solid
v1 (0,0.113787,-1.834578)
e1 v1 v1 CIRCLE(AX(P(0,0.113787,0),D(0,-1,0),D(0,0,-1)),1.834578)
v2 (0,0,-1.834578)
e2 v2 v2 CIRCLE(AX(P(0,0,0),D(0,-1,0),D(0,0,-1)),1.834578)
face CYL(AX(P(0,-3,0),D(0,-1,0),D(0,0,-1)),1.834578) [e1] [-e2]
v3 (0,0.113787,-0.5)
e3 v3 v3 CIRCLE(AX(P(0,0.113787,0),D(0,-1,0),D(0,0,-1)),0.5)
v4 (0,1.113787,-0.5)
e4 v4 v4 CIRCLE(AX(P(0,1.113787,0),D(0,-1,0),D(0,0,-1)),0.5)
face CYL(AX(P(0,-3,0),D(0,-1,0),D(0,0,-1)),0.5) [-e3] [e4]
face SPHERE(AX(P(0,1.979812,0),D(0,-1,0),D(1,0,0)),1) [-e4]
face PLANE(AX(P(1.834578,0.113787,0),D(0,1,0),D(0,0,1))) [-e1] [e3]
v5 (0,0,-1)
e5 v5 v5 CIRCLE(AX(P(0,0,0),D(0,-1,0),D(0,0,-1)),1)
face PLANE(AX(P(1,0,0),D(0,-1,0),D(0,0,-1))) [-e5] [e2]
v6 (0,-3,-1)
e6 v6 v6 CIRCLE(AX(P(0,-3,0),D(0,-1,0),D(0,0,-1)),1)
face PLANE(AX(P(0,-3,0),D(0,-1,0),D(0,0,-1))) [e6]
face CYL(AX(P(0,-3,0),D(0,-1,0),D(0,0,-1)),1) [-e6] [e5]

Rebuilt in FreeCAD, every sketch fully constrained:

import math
import FreeCAD as App
import Part
import Sketcher

V = App.Vector

doc = App.newDocument("Part")
params = doc.addObject("Spreadsheet::Sheet", "Params")
for row, (alias, value) in enumerate([
    ("sketch1_radius", "1 mm"),
    ("sketch1_width", "1 mm"),
    ("sketch1_height", "3 mm"),
    ("revolution_angle", "360 deg"),
], start=1):
    params.set(f"A{row}", alias)
    params.set(f"B{row}", "=" + value)
    params.setAlias(f"B{row}", alias)

body = doc.addObject("PartDesign::Body", "Body")

# Sketch on XY plane
sketch1 = body.newObject("Sketcher::SketchObject", "Sketch")
sketch1.AttachmentSupport = (doc.getObject("XY_Plane"), [""])
sketch1.MapMode = "FlatFace"
sketch1.addGeometry(Part.LineSegment(V(0, -3, 0), V(1, -3, 0)), False)
sketch1.addGeometry(Part.LineSegment(V(1, -3, 0), V(1, 0, 0)), False)
sketch1.addGeometry(Part.LineSegment(V(1, 0, 0), V(1.834578, 0, 0)), False)
sketch1.addGeometry(Part.LineSegment(V(1.834578, 0, 0), V(1.834578, 0.113787, 0)), False)
sketch1.addGeometry(Part.LineSegment(V(1.834578, 0.113787, 0), V(0.5, 0.113787, 0)), False)
sketch1.addGeometry(Part.LineSegment(V(0.5, 0.113787, 0), V(0.5, 1.113787, 0)), False)
sketch1.addGeometry(Part.ArcOfCircle(Part.Circle(V(0, 1.979812, 0), V(0, 0, 1), 1), math.radians(-60), math.radians(90)), False)
sketch1.addGeometry(Part.LineSegment(V(0, 2.979812, 0), V(0, -3, 0)), False)
sketch1.addConstraint(Sketcher.Constraint("Coincident", 0, 2, 1, 1))
sketch1.addConstraint(Sketcher.Constraint("Coincident", 1, 2, 2, 1))
sketch1.addConstraint(Sketcher.Constraint("Coincident", 2, 2, 3, 1))
sketch1.addConstraint(Sketcher.Constraint("Coincident", 3, 2, 4, 1))
sketch1.addConstraint(Sketcher.Constraint("Coincident", 4, 2, 5, 1))
sketch1.addConstraint(Sketcher.Constraint("Coincident", 5, 2, 6, 1))
sketch1.addConstraint(Sketcher.Constraint("Coincident", 6, 2, 7, 1))
sketch1.addConstraint(Sketcher.Constraint("Coincident", 7, 2, 0, 1))
sketch1.addConstraint(Sketcher.Constraint("Horizontal", 0))
sketch1.addConstraint(Sketcher.Constraint("Vertical", 1))
sketch1.addConstraint(Sketcher.Constraint("Horizontal", 2))
sketch1.addConstraint(Sketcher.Constraint("Vertical", 3))
sketch1.addConstraint(Sketcher.Constraint("Horizontal", 4))
sketch1.addConstraint(Sketcher.Constraint("Vertical", 5))
sketch1.addConstraint(Sketcher.Constraint("Vertical", 7))
sketch1.addConstraint(Sketcher.Constraint("PointOnObject", 6, 3, -2))
sketch1.addConstraint(Sketcher.Constraint("PointOnObject", 1, 2, -1))
sketch1.addConstraint(Sketcher.Constraint("PointOnObject", 6, 2, -2))
sketch1.addConstraint(Sketcher.Constraint("Equal", 0, 5))
sketch1.addConstraint(Sketcher.Constraint("Radius", 6, 1.0))
sketch1.addConstraint(Sketcher.Constraint("DistanceX", 0, 1, 0, 2, 1.0))
sketch1.addConstraint(Sketcher.Constraint("DistanceY", 1, 1, 1, 2, 3.0))
sketch1.addConstraint(Sketcher.Constraint("DistanceX", -1, 1, 4, 2, 0.5))
sketch1.addConstraint(Sketcher.Constraint("DistanceX", 2, 1, 2, 2, 0.834578))
sketch1.addConstraint(Sketcher.Constraint("DistanceY", 3, 1, 3, 2, 0.113787))
sketch1.setExpression("Constraints[19]", "Params.sketch1_radius")
sketch1.setExpression("Constraints[20]", "Params.sketch1_width")
sketch1.setExpression("Constraints[21]", "Params.sketch1_height")
revolution = body.newObject("PartDesign::Revolution", "Revolution")
revolution.Profile = sketch1
revolution.ReferenceAxis = (sketch1, ["V_Axis"])
revolution.setExpression("Angle", "Params.revolution_angle")

doc.recompute()
